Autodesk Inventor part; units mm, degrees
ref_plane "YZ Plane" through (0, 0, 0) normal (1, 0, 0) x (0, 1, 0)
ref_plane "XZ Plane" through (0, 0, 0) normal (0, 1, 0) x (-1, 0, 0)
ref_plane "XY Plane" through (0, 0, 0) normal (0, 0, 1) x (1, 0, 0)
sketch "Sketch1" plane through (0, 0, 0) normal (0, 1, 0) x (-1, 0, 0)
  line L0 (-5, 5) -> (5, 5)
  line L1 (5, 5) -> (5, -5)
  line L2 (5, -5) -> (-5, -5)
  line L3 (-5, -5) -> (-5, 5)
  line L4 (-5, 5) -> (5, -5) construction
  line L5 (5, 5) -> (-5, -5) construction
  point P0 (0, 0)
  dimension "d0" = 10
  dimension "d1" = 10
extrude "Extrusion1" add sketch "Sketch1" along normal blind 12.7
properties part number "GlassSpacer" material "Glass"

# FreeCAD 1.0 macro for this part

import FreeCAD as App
import Part
import Sketcher
from FreeCAD import Vector
Q = App.Units.Quantity

doc = App.newDocument("Part")
body = doc.addObject("PartDesign::Body", "Body")

# Sketch on XZ plane
sketch1 = body.newObject("Sketcher::SketchObject", "Sketch")
sketch1.AttachmentSupport = (doc.getObject("XZ_Plane"), [""])
sketch1.MapMode = "FlatFace"
sketch1.addGeometry(Part.LineSegment(Vector(-5, 5, 0), Vector(5, 5, 0)), False)
sketch1.addGeometry(Part.LineSegment(Vector(5, 5, 0), Vector(5, -5, 0)), False)
sketch1.addGeometry(Part.LineSegment(Vector(5, -5, 0), Vector(-5, -5, 0)), False)
sketch1.addGeometry(Part.LineSegment(Vector(-5, -5, 0), Vector(-5, 5, 0)), False)
sketch1.addConstraint(Sketcher.Constraint("Coincident", 0, 2, 1, 1))
sketch1.addConstraint(Sketcher.Constraint("Coincident", 1, 2, 2, 1))
sketch1.addConstraint(Sketcher.Constraint("Coincident", 2, 2, 3, 1))
sketch1.addConstraint(Sketcher.Constraint("Coincident", 3, 2, 0, 1))
sketch1.addConstraint(Sketcher.Constraint("Horizontal", 0))
sketch1.addConstraint(Sketcher.Constraint("Vertical", 1))
sketch1.addConstraint(Sketcher.Constraint("Horizontal", 2))
sketch1.addConstraint(Sketcher.Constraint("Vertical", 3))
sketch1.addConstraint(Sketcher.Constraint("Symmetric", 0, 2, 2, 2, -1, 1))
sketch1.addConstraint(Sketcher.Constraint("Equal", 2, 1))
sketch1.addConstraint(Sketcher.Constraint("DistanceX", 0, 1, 0, 2, Q("0.3937 in")))
pad1 = body.newObject("PartDesign::Pad", "Pad")
pad1.Profile = sketch1
pad1.Length = Q("0.5 in")
pad1.Reversed = True

doc.recompute()
